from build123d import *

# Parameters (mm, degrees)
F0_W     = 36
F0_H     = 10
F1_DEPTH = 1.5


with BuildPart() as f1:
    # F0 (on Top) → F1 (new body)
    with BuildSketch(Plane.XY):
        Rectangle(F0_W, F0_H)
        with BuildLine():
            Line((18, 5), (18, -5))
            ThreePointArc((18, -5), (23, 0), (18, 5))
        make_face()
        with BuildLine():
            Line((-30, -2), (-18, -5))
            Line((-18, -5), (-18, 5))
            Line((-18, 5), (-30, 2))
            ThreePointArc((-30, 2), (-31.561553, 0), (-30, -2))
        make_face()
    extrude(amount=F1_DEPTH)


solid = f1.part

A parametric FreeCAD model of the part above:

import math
import FreeCAD as App
import Part
import Sketcher
Q = App.Units.Quantity

doc = App.newDocument("Part")
body = doc.addObject("PartDesign::Body", "Body")

sketch1 = body.newObject("Sketcher::SketchObject", "Sketch")
sketch1.AttachmentSupport = (doc.getObject("XY_Plane"), [""])
sketch1.MapMode = "FlatFace"
sketch1.addGeometry([
    Part.LineSegment(App.Vector(-18, -5, 0), App.Vector(18, -5, 0)),
    Part.ArcOfCircle(Part.Circle(App.Vector(18, 0, 0), App.Vector(0, 0, 1), 5), math.radians(-90), math.radians(90)),
    Part.LineSegment(App.Vector(18, 5, 0), App.Vector(-18, 5, 0)),
    Part.LineSegment(App.Vector(-18, 5, 0), App.Vector(-30, 2, 0)),
    Part.ArcOfCircle(Part.Circle(App.Vector(-29.5, 0, 0), App.Vector(0, 0, 1), 2.1), math.radians(104), math.radians(256)),
    Part.LineSegment(App.Vector(-30, -2, 0), App.Vector(-18, -5, 0)),
], False)
sketch1.addConstraint([
    Sketcher.Constraint("Tangent", 0, 2, 1, 1),
    Sketcher.Constraint("Tangent", 1, 2, 2, 1),
    Sketcher.Constraint("Coincident", 2, 2, 3, 1),
    Sketcher.Constraint("Tangent", 3, 2, 4, 1),
    Sketcher.Constraint("Tangent", 4, 2, 5, 1),
    Sketcher.Constraint("Coincident", 5, 2, 0, 1),
    Sketcher.Constraint("Horizontal", 0),
    Sketcher.Constraint("Horizontal", 2),
    Sketcher.Constraint("Symmetric", 0, 2, 2, 2, -1, 1),
    Sketcher.Constraint("Symmetric", 3, 2, 4, 2, -1),
    Sketcher.Constraint("Radius", 1, Q("5 mm")),
    Sketcher.Constraint("DistanceX", 0, 1, 0, 2, Q("36 mm")),
    Sketcher.Constraint("DistanceX", 3, 2, -1, 1, Q("30 mm")),
    Sketcher.Constraint("DistanceY", -1, 1, 3, 2, Q("2 mm")),
])
pad1 = body.newObject("PartDesign::Pad", "Pad")
pad1.Profile = sketch1
pad1.Length = 1.5

doc.recompute()
